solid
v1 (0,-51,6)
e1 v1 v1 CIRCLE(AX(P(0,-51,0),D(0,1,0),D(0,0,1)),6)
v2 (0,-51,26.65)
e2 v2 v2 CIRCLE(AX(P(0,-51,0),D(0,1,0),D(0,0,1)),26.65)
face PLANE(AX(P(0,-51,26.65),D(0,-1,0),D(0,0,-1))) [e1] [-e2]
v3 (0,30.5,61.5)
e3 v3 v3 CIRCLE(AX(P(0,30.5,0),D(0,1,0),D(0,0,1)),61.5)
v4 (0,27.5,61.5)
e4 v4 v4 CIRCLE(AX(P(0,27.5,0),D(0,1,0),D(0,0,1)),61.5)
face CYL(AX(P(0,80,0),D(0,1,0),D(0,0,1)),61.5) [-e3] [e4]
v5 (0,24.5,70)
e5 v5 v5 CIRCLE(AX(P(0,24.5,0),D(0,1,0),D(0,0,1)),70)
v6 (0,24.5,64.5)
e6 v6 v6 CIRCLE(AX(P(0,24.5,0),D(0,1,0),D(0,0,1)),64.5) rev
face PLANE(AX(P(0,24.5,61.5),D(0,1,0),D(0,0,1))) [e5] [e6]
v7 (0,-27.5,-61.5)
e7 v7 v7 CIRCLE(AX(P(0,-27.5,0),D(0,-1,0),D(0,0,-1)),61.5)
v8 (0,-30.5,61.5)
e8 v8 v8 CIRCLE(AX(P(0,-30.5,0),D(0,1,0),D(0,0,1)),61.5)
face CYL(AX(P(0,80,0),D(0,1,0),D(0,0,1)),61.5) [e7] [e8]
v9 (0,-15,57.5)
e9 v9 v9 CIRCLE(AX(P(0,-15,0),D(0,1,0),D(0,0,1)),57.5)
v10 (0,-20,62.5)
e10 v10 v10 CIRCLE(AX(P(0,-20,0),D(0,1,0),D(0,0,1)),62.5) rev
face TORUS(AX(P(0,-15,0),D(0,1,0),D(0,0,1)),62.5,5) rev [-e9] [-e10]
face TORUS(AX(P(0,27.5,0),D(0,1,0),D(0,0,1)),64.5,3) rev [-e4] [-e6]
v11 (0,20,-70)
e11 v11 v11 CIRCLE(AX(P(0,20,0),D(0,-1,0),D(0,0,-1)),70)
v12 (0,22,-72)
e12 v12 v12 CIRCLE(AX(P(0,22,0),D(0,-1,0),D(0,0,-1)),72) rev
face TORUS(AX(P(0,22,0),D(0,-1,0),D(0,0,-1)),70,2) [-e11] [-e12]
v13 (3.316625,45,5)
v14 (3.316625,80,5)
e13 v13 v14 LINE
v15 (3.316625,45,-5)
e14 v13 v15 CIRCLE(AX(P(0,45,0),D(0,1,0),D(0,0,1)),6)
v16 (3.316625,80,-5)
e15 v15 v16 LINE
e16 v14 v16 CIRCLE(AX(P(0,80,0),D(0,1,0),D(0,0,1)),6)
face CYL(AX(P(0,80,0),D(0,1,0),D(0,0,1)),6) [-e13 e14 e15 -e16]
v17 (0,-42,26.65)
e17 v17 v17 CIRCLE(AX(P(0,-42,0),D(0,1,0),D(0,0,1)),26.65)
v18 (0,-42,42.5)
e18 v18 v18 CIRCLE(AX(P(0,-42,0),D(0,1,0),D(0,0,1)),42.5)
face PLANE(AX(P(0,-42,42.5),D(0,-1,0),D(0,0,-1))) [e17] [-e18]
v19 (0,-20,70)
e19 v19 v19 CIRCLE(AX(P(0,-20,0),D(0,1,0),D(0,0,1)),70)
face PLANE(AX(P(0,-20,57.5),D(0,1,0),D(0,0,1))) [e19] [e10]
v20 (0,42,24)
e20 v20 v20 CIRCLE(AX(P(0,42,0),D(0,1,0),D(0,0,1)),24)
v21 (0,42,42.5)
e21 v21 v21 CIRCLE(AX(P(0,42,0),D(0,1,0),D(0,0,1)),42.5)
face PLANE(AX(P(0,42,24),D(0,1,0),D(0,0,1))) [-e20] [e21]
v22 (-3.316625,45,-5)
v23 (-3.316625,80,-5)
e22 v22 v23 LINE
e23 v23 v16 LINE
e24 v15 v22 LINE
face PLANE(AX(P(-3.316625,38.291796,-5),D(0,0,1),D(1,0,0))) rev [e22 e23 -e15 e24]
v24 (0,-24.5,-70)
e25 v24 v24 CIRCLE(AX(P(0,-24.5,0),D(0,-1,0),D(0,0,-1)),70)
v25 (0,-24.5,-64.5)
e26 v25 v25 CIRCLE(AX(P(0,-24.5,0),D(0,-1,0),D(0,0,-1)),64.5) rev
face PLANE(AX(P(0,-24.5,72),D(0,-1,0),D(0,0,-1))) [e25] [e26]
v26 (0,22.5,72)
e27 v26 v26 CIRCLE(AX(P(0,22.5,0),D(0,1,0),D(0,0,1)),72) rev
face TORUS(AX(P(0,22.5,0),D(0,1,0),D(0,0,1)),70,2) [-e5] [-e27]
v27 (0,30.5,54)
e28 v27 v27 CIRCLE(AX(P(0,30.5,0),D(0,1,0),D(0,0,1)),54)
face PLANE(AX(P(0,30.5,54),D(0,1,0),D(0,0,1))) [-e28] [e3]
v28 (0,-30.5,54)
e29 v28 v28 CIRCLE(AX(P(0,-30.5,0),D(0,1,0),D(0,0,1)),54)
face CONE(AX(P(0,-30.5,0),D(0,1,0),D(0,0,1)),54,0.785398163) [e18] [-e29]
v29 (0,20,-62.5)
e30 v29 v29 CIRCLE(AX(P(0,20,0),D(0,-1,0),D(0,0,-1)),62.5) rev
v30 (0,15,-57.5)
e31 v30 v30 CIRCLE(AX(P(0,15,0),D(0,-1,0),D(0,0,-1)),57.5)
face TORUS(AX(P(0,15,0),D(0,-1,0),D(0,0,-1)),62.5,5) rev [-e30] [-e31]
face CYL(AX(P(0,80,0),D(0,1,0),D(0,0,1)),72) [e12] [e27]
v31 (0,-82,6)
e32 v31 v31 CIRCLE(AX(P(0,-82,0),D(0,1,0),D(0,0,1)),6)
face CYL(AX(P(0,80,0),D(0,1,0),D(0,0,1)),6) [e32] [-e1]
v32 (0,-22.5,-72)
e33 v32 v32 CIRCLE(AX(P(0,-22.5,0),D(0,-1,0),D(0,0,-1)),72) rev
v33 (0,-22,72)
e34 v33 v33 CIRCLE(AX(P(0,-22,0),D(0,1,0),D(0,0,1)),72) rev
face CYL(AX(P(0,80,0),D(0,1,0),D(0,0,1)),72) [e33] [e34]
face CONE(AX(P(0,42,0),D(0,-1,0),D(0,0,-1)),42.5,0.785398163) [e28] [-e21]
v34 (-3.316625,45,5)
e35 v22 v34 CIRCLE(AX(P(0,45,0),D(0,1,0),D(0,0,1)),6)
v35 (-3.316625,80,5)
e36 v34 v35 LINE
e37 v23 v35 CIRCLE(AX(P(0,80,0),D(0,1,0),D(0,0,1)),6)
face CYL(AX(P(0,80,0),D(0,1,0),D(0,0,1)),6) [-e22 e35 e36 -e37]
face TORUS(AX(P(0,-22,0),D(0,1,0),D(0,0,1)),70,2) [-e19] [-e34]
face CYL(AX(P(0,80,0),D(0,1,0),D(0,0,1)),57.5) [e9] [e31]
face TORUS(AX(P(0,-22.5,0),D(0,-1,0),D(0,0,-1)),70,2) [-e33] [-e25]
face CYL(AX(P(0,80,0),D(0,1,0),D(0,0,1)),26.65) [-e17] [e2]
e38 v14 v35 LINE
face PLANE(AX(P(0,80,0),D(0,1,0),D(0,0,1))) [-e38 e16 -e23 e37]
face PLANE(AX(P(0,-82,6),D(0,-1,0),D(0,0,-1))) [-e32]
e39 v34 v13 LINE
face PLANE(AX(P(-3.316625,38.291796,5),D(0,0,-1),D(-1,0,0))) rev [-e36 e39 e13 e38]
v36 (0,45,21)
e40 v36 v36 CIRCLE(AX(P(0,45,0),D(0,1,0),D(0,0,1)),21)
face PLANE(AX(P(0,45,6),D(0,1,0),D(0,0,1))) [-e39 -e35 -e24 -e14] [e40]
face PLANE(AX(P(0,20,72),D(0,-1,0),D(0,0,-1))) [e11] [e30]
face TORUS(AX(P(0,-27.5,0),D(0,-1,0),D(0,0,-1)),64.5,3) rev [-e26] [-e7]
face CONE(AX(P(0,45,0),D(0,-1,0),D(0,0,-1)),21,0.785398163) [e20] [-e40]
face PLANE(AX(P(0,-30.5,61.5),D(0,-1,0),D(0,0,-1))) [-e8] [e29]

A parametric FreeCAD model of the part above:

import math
import FreeCAD as App
import Part
import Sketcher

V = App.Vector


def edges_at(feature, points):
    """Names of the edges that pass closest to the given points."""
    edges = feature.Shape.Edges
    near = lambda p: min(range(len(edges)), key=lambda i: edges[i].distToShape(Part.Vertex(*p))[0])
    return sorted({f"Edge{near(p) + 1}" for p in points})


def add_polygon(sketch, points):
    """Adds a closed chain of lines whose ends are joined by coincident constraints."""
    first, n = sketch.GeometryCount, len(points)
    for a, b in zip(points, points[1:] + points[:1]):
        sketch.addGeometry(Part.LineSegment(App.Vector(*a, 0), App.Vector(*b, 0)), False)
    for i in range(n):
        sketch.addConstraint(Sketcher.Constraint("Coincident", first + i, 2, first + (i + 1) % n, 1))

doc = App.newDocument("Part")
body = doc.addObject("PartDesign::Body", "Body")

# Sketch on YZ plane
sketch1 = body.newObject("Sketcher::SketchObject", "Sketch")
sketch1.AttachmentSupport = (doc.getObject("YZ_Plane"), [""])
sketch1.MapMode = "FlatFace"
add_polygon(sketch1, [(80, 0), (80, 6), (45, 6), (45, 21), (42, 24), (42, 42.5), (30.5, 54), (30.5, 61.5), (24.5, 61.5), (24.5, 72), (20, 72), (20, 57.5), (-20, 57.5), (-20, 72), (-24.5, 72), (-24.5, 61.5), (-30.5, 61.5), (-30.5, 54), (-42, 42.5), (-42, 26.65), (-51, 26.65), (-51, 6), (-82, 6), (-82, 0)])  # lines 0-23
sketch1.addConstraint([
    Sketcher.Constraint("Vertical", 0),
    Sketcher.Constraint("Horizontal", 1),
    Sketcher.Constraint("Vertical", 2),
    Sketcher.Constraint("Vertical", 4),
    Sketcher.Constraint("Vertical", 6),
    Sketcher.Constraint("Horizontal", 7),
    Sketcher.Constraint("Vertical", 8),
    Sketcher.Constraint("Horizontal", 9),
    Sketcher.Constraint("Vertical", 10),
    Sketcher.Constraint("Horizontal", 11),
    Sketcher.Constraint("Vertical", 12),
    Sketcher.Constraint("Horizontal", 13),
    Sketcher.Constraint("Vertical", 14),
    Sketcher.Constraint("Horizontal", 15),
    Sketcher.Constraint("Vertical", 16),
    Sketcher.Constraint("Vertical", 18),
    Sketcher.Constraint("Horizontal", 19),
    Sketcher.Constraint("Vertical", 20),
    Sketcher.Constraint("Horizontal", 21),
    Sketcher.Constraint("Vertical", 22),
    Sketcher.Constraint("Horizontal", 23),
    Sketcher.Constraint("Symmetric", 9, 2, 12, 2, -2),
    Sketcher.Constraint("Symmetric", 7, 2, 14, 2, -2),
    Sketcher.Constraint("Symmetric", 5, 2, 16, 2, -2),
    Sketcher.Constraint("Symmetric", 4, 2, 17, 2, -2),
    Sketcher.Constraint("PointOnObject", 22, 2, -1),
    Sketcher.Constraint("Parallel", 3, 5),
    Sketcher.Constraint("Perpendicular", 5, 17),
    Sketcher.Constraint("Horizontal", 1, 2, 20, 2),
    Sketcher.Constraint("Equal", 15, 0),
    Sketcher.Constraint("DistanceX", 1, 2, 1, 1, 35.0),
    Sketcher.Constraint("DistanceX", 7, 2, 7, 1, 6.0),
    Sketcher.Constraint("DistanceX", 11, 2, 11, 1, 40.0),
    Sketcher.Constraint("DistanceX", 19, 2, 19, 1, 9.0),
    Sketcher.Constraint("DistanceX", 21, 2, 21, 1, 31.0),
    Sketcher.Constraint("DistanceX", 23, 1, 23, 2, 162.0),
    Sketcher.Constraint("DistanceY", 2, 1, 2, 2, 15.0),
    Sketcher.Constraint("DistanceX", 9, 2, 9, 1, 4.5),
    Sketcher.Constraint("DistanceY", 4, 1, 4, 2, 18.5),
    Sketcher.Constraint("DistanceY", 6, 1, 6, 2, 7.5),
    Sketcher.Constraint("DistanceY", 8, 1, 8, 2, 10.5),
    Sketcher.Constraint("DistanceY", 10, 2, 10, 1, 14.5),
    Sketcher.Constraint("DistanceX", -1, 1, 0, 2, 80.0),
    Sketcher.Constraint("DistanceY", 18, 2, 18, 1, 15.85),
])
revolution = body.newObject("PartDesign::Revolution", "Revolution")
revolution.Profile = sketch1
revolution.ReferenceAxis = (sketch1, ["H_Axis"])
revolution.Angle = 360
doc.recompute()

fillet = body.newObject("PartDesign::Fillet", "Fillet")
fillet.Base = (revolution, edges_at(revolution, [
    (0, -24.5, -72),
    (0, -20, -72),
    (0, 20, -72),
    (0, 24.5, -72),
]))
fillet.Radius = 2
doc.recompute()

fillet2 = body.newObject("PartDesign::Fillet", "Fillet001")
fillet2.Base = (fillet, edges_at(fillet, [(0, -20, -57.5), (0, 20, -57.5)]))
fillet2.Radius = 5
doc.recompute()

fillet3 = body.newObject("PartDesign::Fillet", "Fillet002")
fillet3.Base = (fillet2, edges_at(fillet2, [(0, -24.5, -61.5), (0, 24.5, -61.5)]))
fillet3.Radius = 3

# Sketch on XZ plane
sketch2 = body.newObject("Sketcher::SketchObject", "Sketch001")
sketch2.AttachmentSupport = (doc.getObject("XZ_Plane"), [""])
sketch2.MapMode = "FlatFace"
sketch2.AttachmentOffset = App.Placement(V(0, 0, -80), App.Rotation())
sketch2.addGeometry([
    Part.LineSegment(V(-3.316625, -5, 0), V(3.316625, -5, 0)),
    Part.ArcOfCircle(Part.Circle(V(0, 0, 0), V(0, 0, 1), 6), math.radians(-123.55731), math.radians(-56.44269)),
    Part.LineSegment(V(3.316625, 5, 0), V(-3.316625, 5, 0)),
    Part.ArcOfCircle(Part.Circle(V(0, 0, 0), V(0, 0, 1), 6), math.radians(56.44269), math.radians(123.55731)),
], False)
sketch2.addConstraint([
    Sketcher.Constraint("Coincident", 0, 1, 1, 1),
    Sketcher.Constraint("Coincident", 1, 2, 0, 2),
    Sketcher.Constraint("Coincident", 2, 1, 3, 1),
    Sketcher.Constraint("Coincident", 3, 2, 2, 2),
    Sketcher.Constraint("Horizontal", 0),
    Sketcher.Constraint("Horizontal", 2),
    Sketcher.Constraint("Coincident", 1, 3, -1, 1),
    Sketcher.Constraint("Coincident", 3, 3, -1, 1),
    Sketcher.Constraint("Equal", 1, 3),
    Sketcher.Constraint("Vertical", 1, 2, 2, 1),
    Sketcher.Constraint("Radius", 1, 6.0),
    Sketcher.Constraint("DistanceY", 0, 1, -1, 1, 5.0),
])
pocket1 = body.newObject("PartDesign::Pocket", "Pocket")
pocket1.Profile = sketch2
pocket1.Length = 35
pocket1.Reversed = True

doc.recompute()
